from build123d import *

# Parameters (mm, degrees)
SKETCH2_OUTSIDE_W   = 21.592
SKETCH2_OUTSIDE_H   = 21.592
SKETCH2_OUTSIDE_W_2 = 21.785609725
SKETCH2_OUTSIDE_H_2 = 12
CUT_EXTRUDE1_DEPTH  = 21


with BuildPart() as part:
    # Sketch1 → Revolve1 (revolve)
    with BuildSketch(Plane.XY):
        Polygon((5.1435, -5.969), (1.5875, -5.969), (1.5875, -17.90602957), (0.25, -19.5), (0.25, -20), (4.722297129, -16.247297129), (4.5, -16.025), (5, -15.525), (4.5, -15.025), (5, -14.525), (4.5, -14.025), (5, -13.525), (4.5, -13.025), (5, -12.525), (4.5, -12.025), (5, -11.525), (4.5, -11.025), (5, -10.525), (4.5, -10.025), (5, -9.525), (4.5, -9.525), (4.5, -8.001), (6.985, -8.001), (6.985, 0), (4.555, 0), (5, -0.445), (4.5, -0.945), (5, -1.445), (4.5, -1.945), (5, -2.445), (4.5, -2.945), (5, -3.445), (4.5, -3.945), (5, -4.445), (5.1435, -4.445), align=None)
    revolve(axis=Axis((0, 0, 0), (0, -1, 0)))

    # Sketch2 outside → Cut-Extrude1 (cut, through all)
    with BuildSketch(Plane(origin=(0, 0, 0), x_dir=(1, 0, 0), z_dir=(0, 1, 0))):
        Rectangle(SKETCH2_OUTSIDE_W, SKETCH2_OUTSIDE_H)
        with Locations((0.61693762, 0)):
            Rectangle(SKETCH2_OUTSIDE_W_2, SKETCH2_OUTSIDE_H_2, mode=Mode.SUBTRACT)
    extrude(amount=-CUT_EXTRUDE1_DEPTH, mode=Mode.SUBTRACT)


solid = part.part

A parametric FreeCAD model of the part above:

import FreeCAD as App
import Part
import Sketcher
Q = App.Units.Quantity

doc = App.newDocument("Part")
body = doc.addObject("PartDesign::Body", "Body")

# Sketch on XY plane
sketch1 = body.newObject("Sketcher::SketchObject", "Sketch")
sketch1.AttachmentSupport = (doc.getObject("XY_Plane"), [""])
sketch1.MapMode = "FlatFace"
sketch1.addGeometry(Part.LineSegment(App.Vector(5.14, -5.97, 0), App.Vector(1.59, -5.97, 0)), False)
sketch1.addGeometry(Part.LineSegment(App.Vector(1.59, -5.97, 0), App.Vector(1.59, -17.91, 0)), False)
sketch1.addGeometry(Part.LineSegment(App.Vector(1.59, -17.91, 0), App.Vector(0.25, -19.5, 0)), False)
sketch1.addGeometry(Part.LineSegment(App.Vector(0.25, -19.5, 0), App.Vector(0.25, -20, 0)), False)
sketch1.addGeometry(Part.LineSegment(App.Vector(0.25, -20, 0), App.Vector(4.72, -16.25, 0)), False)
sketch1.addGeometry(Part.LineSegment(App.Vector(4.72, -16.25, 0), App.Vector(4.5, -16.02, 0)), False)
sketch1.addGeometry(Part.LineSegment(App.Vector(4.5, -16.02, 0), App.Vector(5, -15.53, 0)), False)
sketch1.addGeometry(Part.LineSegment(App.Vector(5, -15.53, 0), App.Vector(4.5, -15.03, 0)), False)
sketch1.addGeometry(Part.LineSegment(App.Vector(4.5, -15.03, 0), App.Vector(5, -14.53, 0)), False)
sketch1.addGeometry(Part.LineSegment(App.Vector(5, -14.53, 0), App.Vector(4.5, -14.03, 0)), False)
sketch1.addGeometry(Part.LineSegment(App.Vector(4.5, -14.03, 0), App.Vector(5, -13.53, 0)), False)
sketch1.addGeometry(Part.LineSegment(App.Vector(5, -13.53, 0), App.Vector(4.5, -13.03, 0)), False)
sketch1.addGeometry(Part.LineSegment(App.Vector(4.5, -13.03, 0), App.Vector(5, -12.53, 0)), False)
sketch1.addGeometry(Part.LineSegment(App.Vector(5, -12.53, 0), App.Vector(4.5, -12.03, 0)), False)
sketch1.addGeometry(Part.LineSegment(App.Vector(4.5, -12.03, 0), App.Vector(5, -11.53, 0)), False)
sketch1.addGeometry(Part.LineSegment(App.Vector(5, -11.53, 0), App.Vector(4.5, -11.03, 0)), False)
sketch1.addGeometry(Part.LineSegment(App.Vector(4.5, -11.03, 0), App.Vector(5, -10.53, 0)), False)
sketch1.addGeometry(Part.LineSegment(App.Vector(5, -10.53, 0), App.Vector(4.5, -10.03, 0)), False)
sketch1.addGeometry(Part.LineSegment(App.Vector(4.5, -10.03, 0), App.Vector(5, -9.53, 0)), False)
sketch1.addGeometry(Part.LineSegment(App.Vector(5, -9.53, 0), App.Vector(4.5, -9.53, 0)), False)
sketch1.addGeometry(Part.LineSegment(App.Vector(4.5, -9.53, 0), App.Vector(4.5, -8, 0)), False)
sketch1.addGeometry(Part.LineSegment(App.Vector(4.5, -8, 0), App.Vector(6.99, -8, 0)), False)
sketch1.addGeometry(Part.LineSegment(App.Vector(6.99, -8, 0), App.Vector(6.99, 0, 0)), False)
sketch1.addGeometry(Part.LineSegment(App.Vector(6.99, 0, 0), App.Vector(4.55, 0, 0)), False)
sketch1.addGeometry(Part.LineSegment(App.Vector(4.55, 0, 0), App.Vector(5, -0.45, 0)), False)
sketch1.addGeometry(Part.LineSegment(App.Vector(5, -0.45, 0), App.Vector(4.5, -0.94, 0)), False)
sketch1.addGeometry(Part.LineSegment(App.Vector(4.5, -0.94, 0), App.Vector(5, -1.45, 0)), False)
sketch1.addGeometry(Part.LineSegment(App.Vector(5, -1.45, 0), App.Vector(4.5, -1.95, 0)), False)
sketch1.addGeometry(Part.LineSegment(App.Vector(4.5, -1.95, 0), App.Vector(5, -2.44, 0)), False)
sketch1.addGeometry(Part.LineSegment(App.Vector(5, -2.44, 0), App.Vector(4.5, -2.94, 0)), False)
sketch1.addGeometry(Part.LineSegment(App.Vector(4.5, -2.94, 0), App.Vector(5, -3.44, 0)), False)
sketch1.addGeometry(Part.LineSegment(App.Vector(5, -3.44, 0), App.Vector(4.5, -3.94, 0)), False)
sketch1.addGeometry(Part.LineSegment(App.Vector(4.5, -3.94, 0), App.Vector(5, -4.45, 0)), False)
sketch1.addGeometry(Part.LineSegment(App.Vector(5, -4.45, 0), App.Vector(5.14, -4.45, 0)), False)
sketch1.addGeometry(Part.LineSegment(App.Vector(5.14, -4.45, 0), App.Vector(5.14, -5.97, 0)), False)
sketch1.addConstraint(Sketcher.Constraint("Coincident", 0, 2, 1, 1))
sketch1.addConstraint(Sketcher.Constraint("Coincident", 1, 2, 2, 1))
sketch1.addConstraint(Sketcher.Constraint("Coincident", 2, 2, 3, 1))
sketch1.addConstraint(Sketcher.Constraint("Coincident", 3, 2, 4, 1))
sketch1.addConstraint(Sketcher.Constraint("Coincident", 4, 2, 5, 1))
sketch1.addConstraint(Sketcher.Constraint("Coincident", 5, 2, 6, 1))
sketch1.addConstraint(Sketcher.Constraint("Coincident", 6, 2, 7, 1))
sketch1.addConstraint(Sketcher.Constraint("Coincident", 7, 2, 8, 1))
sketch1.addConstraint(Sketcher.Constraint("Coincident", 8, 2, 9, 1))
sketch1.addConstraint(Sketcher.Constraint("Coincident", 9, 2, 10, 1))
sketch1.addConstraint(Sketcher.Constraint("Coincident", 10, 2, 11, 1))
sketch1.addConstraint(Sketcher.Constraint("Coincident", 11, 2, 12, 1))
sketch1.addConstraint(Sketcher.Constraint("Coincident", 12, 2, 13, 1))
sketch1.addConstraint(Sketcher.Constraint("Coincident", 13, 2, 14, 1))
sketch1.addConstraint(Sketcher.Constraint("Coincident", 14, 2, 15, 1))
sketch1.addConstraint(Sketcher.Constraint("Coincident", 15, 2, 16, 1))
sketch1.addConstraint(Sketcher.Constraint("Coincident", 16, 2, 17, 1))
sketch1.addConstraint(Sketcher.Constraint("Coincident", 17, 2, 18, 1))
sketch1.addConstraint(Sketcher.Constraint("Coincident", 18, 2, 19, 1))
sketch1.addConstraint(Sketcher.Constraint("Coincident", 19, 2, 20, 1))
sketch1.addConstraint(Sketcher.Constraint("Coincident", 20, 2, 21, 1))
sketch1.addConstraint(Sketcher.Constraint("Coincident", 21, 2, 22, 1))
sketch1.addConstraint(Sketcher.Constraint("Coincident", 22, 2, 23, 1))
sketch1.addConstraint(Sketcher.Constraint("Coincident", 23, 2, 24, 1))
sketch1.addConstraint(Sketcher.Constraint("Coincident", 24, 2, 25, 1))
sketch1.addConstraint(Sketcher.Constraint("Coincident", 25, 2, 26, 1))
sketch1.addConstraint(Sketcher.Constraint("Coincident", 26, 2, 27, 1))
sketch1.addConstraint(Sketcher.Constraint("Coincident", 27, 2, 28, 1))
sketch1.addConstraint(Sketcher.Constraint("Coincident", 28, 2, 29, 1))
sketch1.addConstraint(Sketcher.Constraint("Coincident", 29, 2, 30, 1))
sketch1.addConstraint(Sketcher.Constraint("Coincident", 30, 2, 31, 1))
sketch1.addConstraint(Sketcher.Constraint("Coincident", 31, 2, 32, 1))
sketch1.addConstraint(Sketcher.Constraint("Coincident", 32, 2, 33, 1))
sketch1.addConstraint(Sketcher.Constraint("Coincident", 33, 2, 34, 1))
sketch1.addConstraint(Sketcher.Constraint("Coincident", 34, 2, 0, 1))
sketch1.addConstraint(Sketcher.Constraint("Horizontal", 0))
sketch1.addConstraint(Sketcher.Constraint("Vertical", 1))
sketch1.addConstraint(Sketcher.Constraint("Vertical", 3))
sketch1.addConstraint(Sketcher.Constraint("Horizontal", 19))
sketch1.addConstraint(Sketcher.Constraint("Vertical", 20))
sketch1.addConstraint(Sketcher.Constraint("Horizontal", 21))
sketch1.addConstraint(Sketcher.Constraint("Vertical", 22))
sketch1.addConstraint(Sketcher.Constraint("Horizontal", 23))
sketch1.addConstraint(Sketcher.Constraint("Horizontal", 33))
sketch1.addConstraint(Sketcher.Constraint("Vertical", 34))
sketch1.addConstraint(Sketcher.Constraint("PointOnObject", 22, 2, -1))
sketch1.addConstraint(Sketcher.Constraint("Perpendicular", 5, 6))
sketch1.addConstraint(Sketcher.Constraint("Perpendicular", 6, 7))
sketch1.addConstraint(Sketcher.Constraint("Perpendicular", 7, 8))
sketch1.addConstraint(Sketcher.Constraint("Perpendicular", 8, 9))
sketch1.addConstraint(Sketcher.Constraint("Perpendicular", 9, 10))
sketch1.addConstraint(Sketcher.Constraint("Perpendicular", 10, 11))
sketch1.addConstraint(Sketcher.Constraint("Perpendicular", 11, 12))
sketch1.addConstraint(Sketcher.Constraint("Perpendicular", 12, 13))
sketch1.addConstraint(Sketcher.Constraint("Perpendicular", 13, 14))
sketch1.addConstraint(Sketcher.Constraint("Perpendicular", 14, 15))
sketch1.addConstraint(Sketcher.Constraint("Perpendicular", 15, 16))
sketch1.addConstraint(Sketcher.Constraint("Perpendicular", 16, 17))
sketch1.addConstraint(Sketcher.Constraint("Perpendicular", 17, 18))
sketch1.addConstraint(Sketcher.Constraint("Perpendicular", 18, 24))
sketch1.addConstraint(Sketcher.Constraint("Perpendicular", 24, 25))
sketch1.addConstraint(Sketcher.Constraint("Perpendicular", 25, 26))
sketch1.addConstraint(Sketcher.Constraint("Perpendicular", 26, 27))
sketch1.addConstraint(Sketcher.Constraint("Perpendicular", 27, 28))
sketch1.addConstraint(Sketcher.Constraint("Perpendicular", 28, 29))
sketch1.addConstraint(Sketcher.Constraint("Perpendicular", 29, 30))
sketch1.addConstraint(Sketcher.Constraint("Perpendicular", 30, 31))
sketch1.addConstraint(Sketcher.Constraint("Perpendicular", 31, 32))
sketch1.addConstraint(Sketcher.Constraint("Vertical", 5, 2, 7, 2))
sketch1.addConstraint(Sketcher.Constraint("Vertical", 6, 2, 8, 2))
sketch1.addConstraint(Sketcher.Constraint("Vertical", 7, 2, 9, 2))
sketch1.addConstraint(Sketcher.Constraint("Vertical", 8, 2, 10, 2))
sketch1.addConstraint(Sketcher.Constraint("Vertical", 9, 2, 11, 2))
sketch1.addConstraint(Sketcher.Constraint("Vertical", 10, 2, 12, 2))
sketch1.addConstraint(Sketcher.Constraint("Vertical", 11, 2, 13, 2))
sketch1.addConstraint(Sketcher.Constraint("Vertical", 12, 2, 14, 2))
sketch1.addConstraint(Sketcher.Constraint("Vertical", 13, 2, 15, 2))
sketch1.addConstraint(Sketcher.Constraint("Vertical", 14, 2, 16, 2))
sketch1.addConstraint(Sketcher.Constraint("Vertical", 15, 2, 17, 2))
sketch1.addConstraint(Sketcher.Constraint("Vertical", 16, 2, 18, 2))
sketch1.addConstraint(Sketcher.Constraint("Vertical", 17, 2, 19, 2))
sketch1.addConstraint(Sketcher.Constraint("Vertical", 18, 2, 24, 2))
sketch1.addConstraint(Sketcher.Constraint("Vertical", 20, 2, 25, 2))
sketch1.addConstraint(Sketcher.Constraint("Vertical", 24, 2, 26, 2))
sketch1.addConstraint(Sketcher.Constraint("Vertical", 25, 2, 27, 2))
sketch1.addConstraint(Sketcher.Constraint("Vertical", 26, 2, 28, 2))
sketch1.addConstraint(Sketcher.Constraint("Vertical", 27, 2, 29, 2))
sketch1.addConstraint(Sketcher.Constraint("Vertical", 28, 2, 30, 2))
sketch1.addConstraint(Sketcher.Constraint("Vertical", 29, 2, 31, 2))
sketch1.addConstraint(Sketcher.Constraint("Vertical", 30, 2, 32, 2))
sketch1.addConstraint(Sketcher.Constraint("Equal", 19, 3))
sketch1.addConstraint(Sketcher.Constraint("Equal", 20, 34))
sketch1.addConstraint(Sketcher.Constraint("Equal", 6, 7))
sketch1.addConstraint(Sketcher.Constraint("Angle", 2, Q("-130 deg")))
sketch1.addConstraint(Sketcher.Constraint("Angle", 4, Q("40 deg")))
sketch1.addConstraint(Sketcher.Constraint("DistanceX", 19, 2, 19, 1, 0.5))
sketch1.addConstraint(Sketcher.Constraint("DistanceY", 3, 2, -1, 1, 20.0))
sketch1.addConstraint(Sketcher.Constraint("DistanceX", -1, 1, 6, 2, 5.0))
sketch1.addConstraint(Sketcher.Constraint("DistanceX", 23, 2, 23, 1, 2.43))
sketch1.addConstraint(Sketcher.Constraint("DistanceX", 0, 2, 0, 1, 3.556))
sketch1.addConstraint(Sketcher.Constraint("DistanceX", 21, 1, 21, 2, 2.485))
sketch1.addConstraint(Sketcher.Constraint("DistanceY", 20, 1, 20, 2, 1.524))
sketch1.addConstraint(Sketcher.Constraint("DistanceY", 22, 1, 22, 2, 8.001))
sketch1.addConstraint(Sketcher.Constraint("DistanceX", -1, 1, 2, 2, 0.25))
sketch1.addConstraint(Sketcher.Constraint("DistanceX", 33, 1, 33, 2, 0.1435))
revolution = body.newObject("PartDesign::Revolution", "Revolution")
revolution.Profile = sketch1
revolution.ReferenceAxis = (sketch1, ["V_Axis"])
revolution.Angle = 360

# Sketch on XZ plane
sketch2 = body.newObject("Sketcher::SketchObject", "Sketch001")
sketch2.AttachmentSupport = (doc.getObject("XZ_Plane"), [""])
sketch2.MapMode = "FlatFace"
sketch2.addGeometry(Part.LineSegment(App.Vector(-10.8, -10.8, 0), App.Vector(-10.8, 10.8, 0)), False)
sketch2.addGeometry(Part.LineSegment(App.Vector(-10.8, 10.8, 0), App.Vector(10.8, 10.8, 0)), False)
sketch2.addGeometry(Part.LineSegment(App.Vector(10.8, 10.8, 0), App.Vector(10.8, 6, 0)), False)
sketch2.addGeometry(Part.LineSegment(App.Vector(10.8, 6, 0), App.Vector(-10.3, 6, 0)), False)
sketch2.addGeometry(Part.LineSegment(App.Vector(-10.3, 6, 0), App.Vector(-10.3, -6, 0)), False)
sketch2.addGeometry(Part.LineSegment(App.Vector(-10.3, -6, 0), App.Vector(10.8, -6, 0)), False)
sketch2.addGeometry(Part.LineSegment(App.Vector(10.8, -6, 0), App.Vector(10.8, -10.8, 0)), False)
sketch2.addGeometry(Part.LineSegment(App.Vector(10.8, -10.8, 0), App.Vector(-10.8, -10.8, 0)), False)
sketch2.addConstraint(Sketcher.Constraint("Coincident", 0, 2, 1, 1))
sketch2.addConstraint(Sketcher.Constraint("Coincident", 1, 2, 2, 1))
sketch2.addConstraint(Sketcher.Constraint("Coincident", 2, 2, 3, 1))
sketch2.addConstraint(Sketcher.Constraint("Coincident", 3, 2, 4, 1))
sketch2.addConstraint(Sketcher.Constraint("Coincident", 4, 2, 5, 1))
sketch2.addConstraint(Sketcher.Constraint("Coincident", 5, 2, 6, 1))
sketch2.addConstraint(Sketcher.Constraint("Coincident", 6, 2, 7, 1))
sketch2.addConstraint(Sketcher.Constraint("Coincident", 7, 2, 0, 1))
sketch2.addConstraint(Sketcher.Constraint("Vertical", 0))
sketch2.addConstraint(Sketcher.Constraint("Horizontal", 1))
sketch2.addConstraint(Sketcher.Constraint("Vertical", 2))
sketch2.addConstraint(Sketcher.Constraint("Horizontal", 3))
sketch2.addConstraint(Sketcher.Constraint("Vertical", 4))
sketch2.addConstraint(Sketcher.Constraint("Horizontal", 5))
sketch2.addConstraint(Sketcher.Constraint("Vertical", 6))
sketch2.addConstraint(Sketcher.Constraint("Horizontal", 7))
sketch2.addConstraint(Sketcher.Constraint("Symmetric", 0, 2, 6, 2, -1, 1))
sketch2.addConstraint(Sketcher.Constraint("Symmetric", 2, 2, 5, 2, -1))
sketch2.addConstraint(Sketcher.Constraint("Equal", 7, 0))
sketch2.addConstraint(Sketcher.Constraint("DistanceY", 4, 2, 4, 1, 12.0))
sketch2.addConstraint(Sketcher.Constraint("DistanceX", 1, 1, 1, 2, 21.592))
sketch2.addConstraint(Sketcher.Constraint("DistanceX", 3, 2, 3, 1, 21.071867))
pocket1 = body.newObject("PartDesign::Pocket", "Pocket")
pocket1.Profile = sketch2
pocket1.Type = "ThroughAll"
pocket1.Reversed = True

doc.recompute()
